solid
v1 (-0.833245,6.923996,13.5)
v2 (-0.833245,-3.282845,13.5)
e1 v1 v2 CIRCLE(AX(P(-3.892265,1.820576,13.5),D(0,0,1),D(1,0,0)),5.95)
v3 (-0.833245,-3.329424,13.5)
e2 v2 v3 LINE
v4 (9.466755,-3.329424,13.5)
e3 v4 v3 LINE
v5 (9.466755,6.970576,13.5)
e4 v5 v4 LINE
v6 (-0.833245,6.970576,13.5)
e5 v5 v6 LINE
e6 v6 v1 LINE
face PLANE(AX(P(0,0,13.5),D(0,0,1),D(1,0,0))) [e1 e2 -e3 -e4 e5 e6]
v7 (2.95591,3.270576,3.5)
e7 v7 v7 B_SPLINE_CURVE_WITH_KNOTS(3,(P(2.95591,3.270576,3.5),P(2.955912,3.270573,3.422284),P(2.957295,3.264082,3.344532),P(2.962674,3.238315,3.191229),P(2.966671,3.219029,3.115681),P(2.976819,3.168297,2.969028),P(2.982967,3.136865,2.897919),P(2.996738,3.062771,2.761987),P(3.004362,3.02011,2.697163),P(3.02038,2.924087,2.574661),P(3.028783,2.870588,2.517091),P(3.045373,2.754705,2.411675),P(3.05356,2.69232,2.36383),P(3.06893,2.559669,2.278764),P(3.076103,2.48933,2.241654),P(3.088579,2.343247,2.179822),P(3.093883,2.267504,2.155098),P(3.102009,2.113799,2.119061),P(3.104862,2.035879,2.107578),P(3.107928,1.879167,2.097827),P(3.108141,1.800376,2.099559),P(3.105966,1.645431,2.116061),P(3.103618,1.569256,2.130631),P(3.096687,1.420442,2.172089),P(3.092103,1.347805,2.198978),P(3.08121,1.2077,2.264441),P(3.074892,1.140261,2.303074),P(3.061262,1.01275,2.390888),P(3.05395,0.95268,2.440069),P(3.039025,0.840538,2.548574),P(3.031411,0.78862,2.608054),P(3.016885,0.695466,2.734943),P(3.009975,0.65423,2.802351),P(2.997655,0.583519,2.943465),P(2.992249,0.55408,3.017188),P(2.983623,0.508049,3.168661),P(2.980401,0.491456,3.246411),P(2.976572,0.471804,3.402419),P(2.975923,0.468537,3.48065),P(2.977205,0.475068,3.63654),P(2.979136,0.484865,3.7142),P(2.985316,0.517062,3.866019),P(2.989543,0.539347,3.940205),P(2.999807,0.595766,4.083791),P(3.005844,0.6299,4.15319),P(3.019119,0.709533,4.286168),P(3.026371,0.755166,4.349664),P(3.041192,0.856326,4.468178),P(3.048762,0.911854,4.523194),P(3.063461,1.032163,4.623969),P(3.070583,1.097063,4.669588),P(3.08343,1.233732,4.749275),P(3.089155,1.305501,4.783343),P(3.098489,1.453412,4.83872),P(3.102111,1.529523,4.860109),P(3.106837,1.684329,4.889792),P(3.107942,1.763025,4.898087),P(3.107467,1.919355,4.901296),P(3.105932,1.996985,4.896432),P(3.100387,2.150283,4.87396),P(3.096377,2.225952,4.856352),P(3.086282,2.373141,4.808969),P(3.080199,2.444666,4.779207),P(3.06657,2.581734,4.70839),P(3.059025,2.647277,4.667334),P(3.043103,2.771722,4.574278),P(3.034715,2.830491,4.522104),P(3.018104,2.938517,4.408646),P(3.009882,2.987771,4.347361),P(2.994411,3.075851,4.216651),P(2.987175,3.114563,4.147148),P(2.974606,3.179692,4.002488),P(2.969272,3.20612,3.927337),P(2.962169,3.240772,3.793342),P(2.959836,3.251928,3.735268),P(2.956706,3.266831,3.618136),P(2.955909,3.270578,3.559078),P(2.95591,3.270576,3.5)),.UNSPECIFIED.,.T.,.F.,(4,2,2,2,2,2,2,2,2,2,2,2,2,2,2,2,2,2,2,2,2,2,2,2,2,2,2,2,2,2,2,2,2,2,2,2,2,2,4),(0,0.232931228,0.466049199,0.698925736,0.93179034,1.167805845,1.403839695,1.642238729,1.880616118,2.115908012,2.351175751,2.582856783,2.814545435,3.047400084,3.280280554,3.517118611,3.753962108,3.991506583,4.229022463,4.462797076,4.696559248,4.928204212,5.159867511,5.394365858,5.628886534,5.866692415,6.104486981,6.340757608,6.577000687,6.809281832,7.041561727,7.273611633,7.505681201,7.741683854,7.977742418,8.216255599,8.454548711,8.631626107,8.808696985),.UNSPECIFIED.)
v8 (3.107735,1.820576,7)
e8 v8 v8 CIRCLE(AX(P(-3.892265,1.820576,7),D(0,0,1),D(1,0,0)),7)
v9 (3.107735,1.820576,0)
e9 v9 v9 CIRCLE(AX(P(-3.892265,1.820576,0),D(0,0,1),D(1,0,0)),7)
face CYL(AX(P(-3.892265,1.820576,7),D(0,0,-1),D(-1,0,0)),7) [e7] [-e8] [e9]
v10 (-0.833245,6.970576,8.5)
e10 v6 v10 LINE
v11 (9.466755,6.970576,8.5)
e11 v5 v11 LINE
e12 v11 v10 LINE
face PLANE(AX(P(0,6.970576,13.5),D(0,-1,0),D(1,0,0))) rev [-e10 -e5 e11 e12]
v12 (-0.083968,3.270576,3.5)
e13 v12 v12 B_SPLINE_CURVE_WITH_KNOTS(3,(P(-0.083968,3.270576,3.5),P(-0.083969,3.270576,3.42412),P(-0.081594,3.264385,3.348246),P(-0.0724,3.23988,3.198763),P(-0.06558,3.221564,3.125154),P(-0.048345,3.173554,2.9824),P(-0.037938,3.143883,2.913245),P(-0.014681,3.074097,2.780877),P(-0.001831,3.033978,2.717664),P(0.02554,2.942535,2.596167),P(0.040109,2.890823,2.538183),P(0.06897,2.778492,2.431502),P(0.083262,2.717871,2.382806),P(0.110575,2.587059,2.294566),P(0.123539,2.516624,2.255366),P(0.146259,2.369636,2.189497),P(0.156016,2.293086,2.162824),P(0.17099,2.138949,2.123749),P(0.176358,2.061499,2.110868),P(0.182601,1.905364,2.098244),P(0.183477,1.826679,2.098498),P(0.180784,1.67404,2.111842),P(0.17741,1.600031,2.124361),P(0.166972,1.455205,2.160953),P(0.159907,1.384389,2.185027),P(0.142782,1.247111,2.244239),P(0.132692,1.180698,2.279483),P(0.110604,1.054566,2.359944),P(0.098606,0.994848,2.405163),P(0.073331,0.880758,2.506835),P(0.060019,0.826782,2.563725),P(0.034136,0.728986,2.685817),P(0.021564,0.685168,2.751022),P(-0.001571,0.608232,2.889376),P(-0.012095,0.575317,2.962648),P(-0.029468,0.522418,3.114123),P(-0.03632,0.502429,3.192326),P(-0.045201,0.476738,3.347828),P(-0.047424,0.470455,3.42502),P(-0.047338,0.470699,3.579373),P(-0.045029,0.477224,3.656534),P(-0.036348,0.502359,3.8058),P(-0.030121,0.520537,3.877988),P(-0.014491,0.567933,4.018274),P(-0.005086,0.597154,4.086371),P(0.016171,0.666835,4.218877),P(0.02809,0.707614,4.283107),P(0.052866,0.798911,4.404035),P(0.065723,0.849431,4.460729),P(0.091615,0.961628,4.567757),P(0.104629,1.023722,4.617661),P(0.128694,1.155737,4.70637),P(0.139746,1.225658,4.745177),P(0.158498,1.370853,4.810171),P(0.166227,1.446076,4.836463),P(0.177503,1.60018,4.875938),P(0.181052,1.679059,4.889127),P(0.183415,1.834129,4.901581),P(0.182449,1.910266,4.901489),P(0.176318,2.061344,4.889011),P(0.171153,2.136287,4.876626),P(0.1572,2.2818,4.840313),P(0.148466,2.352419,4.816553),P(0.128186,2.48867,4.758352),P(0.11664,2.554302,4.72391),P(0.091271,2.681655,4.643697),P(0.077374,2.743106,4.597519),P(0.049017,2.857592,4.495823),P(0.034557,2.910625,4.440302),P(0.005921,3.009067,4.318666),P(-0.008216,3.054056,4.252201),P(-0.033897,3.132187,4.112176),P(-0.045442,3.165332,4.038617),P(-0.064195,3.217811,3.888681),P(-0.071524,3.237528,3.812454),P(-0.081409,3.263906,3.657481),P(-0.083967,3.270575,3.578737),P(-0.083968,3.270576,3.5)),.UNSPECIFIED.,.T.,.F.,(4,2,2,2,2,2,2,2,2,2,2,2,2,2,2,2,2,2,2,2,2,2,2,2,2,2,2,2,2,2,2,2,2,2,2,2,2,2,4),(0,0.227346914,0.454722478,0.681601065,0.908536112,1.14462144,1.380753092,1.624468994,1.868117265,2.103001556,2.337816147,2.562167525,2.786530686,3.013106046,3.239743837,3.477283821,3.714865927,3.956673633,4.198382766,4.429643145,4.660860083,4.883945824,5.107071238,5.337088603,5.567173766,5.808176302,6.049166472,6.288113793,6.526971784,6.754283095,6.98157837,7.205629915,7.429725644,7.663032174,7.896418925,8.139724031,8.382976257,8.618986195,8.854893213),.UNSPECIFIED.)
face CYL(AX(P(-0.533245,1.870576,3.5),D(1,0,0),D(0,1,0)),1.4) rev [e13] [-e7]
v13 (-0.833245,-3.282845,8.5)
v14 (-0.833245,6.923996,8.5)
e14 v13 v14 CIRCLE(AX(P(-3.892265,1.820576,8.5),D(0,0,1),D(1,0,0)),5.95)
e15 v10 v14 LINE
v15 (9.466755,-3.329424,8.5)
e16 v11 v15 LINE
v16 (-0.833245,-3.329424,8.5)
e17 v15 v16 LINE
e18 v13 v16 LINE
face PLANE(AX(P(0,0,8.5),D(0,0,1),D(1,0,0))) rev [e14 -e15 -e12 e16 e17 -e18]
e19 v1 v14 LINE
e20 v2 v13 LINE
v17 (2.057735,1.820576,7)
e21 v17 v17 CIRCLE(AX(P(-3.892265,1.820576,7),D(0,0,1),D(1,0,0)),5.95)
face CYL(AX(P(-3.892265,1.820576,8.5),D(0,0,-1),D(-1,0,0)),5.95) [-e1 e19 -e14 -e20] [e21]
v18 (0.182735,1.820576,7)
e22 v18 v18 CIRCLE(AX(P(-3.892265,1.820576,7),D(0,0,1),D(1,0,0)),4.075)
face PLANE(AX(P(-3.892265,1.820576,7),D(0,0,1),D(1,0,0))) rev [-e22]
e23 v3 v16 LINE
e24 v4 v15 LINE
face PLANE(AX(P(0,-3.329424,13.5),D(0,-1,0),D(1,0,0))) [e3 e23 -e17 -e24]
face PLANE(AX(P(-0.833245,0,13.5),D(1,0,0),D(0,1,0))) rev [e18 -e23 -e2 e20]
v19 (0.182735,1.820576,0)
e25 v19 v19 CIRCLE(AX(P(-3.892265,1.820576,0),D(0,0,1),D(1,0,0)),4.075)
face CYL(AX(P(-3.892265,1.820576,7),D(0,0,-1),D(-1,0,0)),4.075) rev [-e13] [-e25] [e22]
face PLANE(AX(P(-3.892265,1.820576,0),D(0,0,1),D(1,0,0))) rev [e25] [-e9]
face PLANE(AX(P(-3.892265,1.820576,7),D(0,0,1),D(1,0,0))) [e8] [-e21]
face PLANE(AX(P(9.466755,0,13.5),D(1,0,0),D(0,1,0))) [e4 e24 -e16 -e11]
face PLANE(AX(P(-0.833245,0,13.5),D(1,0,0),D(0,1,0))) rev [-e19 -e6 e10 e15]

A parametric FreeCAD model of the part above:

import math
import FreeCAD as App
import Part
import Sketcher
Q = App.Units.Quantity

doc = App.newDocument("Part")
params = doc.addObject("Spreadsheet::Sheet", "Params")
for row, (alias, value) in enumerate([
    ("sketch1_diameter", "14 mm"),
    ("sketch1_diameter2", "8.15 mm"),
    ("pad1_length", "7 mm"),
    ("sketch2_diameter", "11.9 mm"),
    ("pad2_length", "1.5 mm"),
    ("sketch3_radius", "5.95 mm"),
    ("sketch3_width", "10.3 mm"),
    ("pad3_length", "5 mm"),
    ("sketch4_diameter", "2.8 mm"),
    ("pocket1_length", "10 mm"),
], start=1):
    params.set(f"A{row}", alias)
    params.set(f"B{row}", "=" + value)
    params.setAlias(f"B{row}", alias)

body = doc.addObject("PartDesign::Body", "Body")

# Sketch on XY plane
sketch1 = doc.addObject("Sketcher::SketchObject", "Sketch")
body.addObject(sketch1)
sketch1.AttachmentSupport = (doc.XY_Plane, [""])
sketch1.MapMode = "FlatFace"
sketch1.addGeometry([
    Part.Circle(App.Vector(-3.892265, 1.820576, 0), App.Vector(0, 0, 1), 7),
    Part.Circle(App.Vector(-3.892265, 1.820576, 0), App.Vector(0, 0, 1), 4.075),
], False)
sketch1.addConstraint([
    Sketcher.Constraint("Coincident", 1, 3, 0, 3),
    Sketcher.Constraint("Diameter", 0, Q("14 mm")),
    Sketcher.Constraint("Diameter", 1, Q("8.15 mm")),
    Sketcher.Constraint("DistanceX", 0, 3, -1, 1, Q("3.892265 mm")),
    Sketcher.Constraint("DistanceY", -1, 1, 0, 3, Q("1.820576 mm")),
])
sketch1.setExpression("Constraints[1]", "Params.sketch1_diameter")
sketch1.setExpression("Constraints[2]", "Params.sketch1_diameter2")
pad1 = doc.addObject("PartDesign::Pad", "Pad")
body.addObject(pad1)
pad1.Profile = sketch1
pad1.setExpression("Length", "Params.pad1_length")

# Sketch on XY plane
sketch2 = doc.addObject("Sketcher::SketchObject", "Sketch001")
body.addObject(sketch2)
sketch2.AttachmentSupport = (doc.XY_Plane, [""])
sketch2.MapMode = "FlatFace"
sketch2.AttachmentOffset = App.Placement(App.Vector(0, 0, 7), App.Rotation())
sketch2.addGeometry(Part.Circle(App.Vector(-3.892265, 1.820576, 0), App.Vector(0, 0, 1), 5.95), False)
sketch2.addConstraint([
    Sketcher.Constraint("Diameter", 0, Q("11.9 mm")),
    Sketcher.Constraint("DistanceX", 0, 3, -1, 1, Q("3.892265 mm")),
    Sketcher.Constraint("DistanceY", -1, 1, 0, 3, Q("1.820576 mm")),
])
sketch2.setExpression("Constraints[0]", "Params.sketch2_diameter")
pad2 = doc.addObject("PartDesign::Pad", "Pad001")
body.addObject(pad2)
pad2.Profile = sketch2
pad2.setExpression("Length", "Params.pad2_length")

# Sketch on XY plane
sketch3 = doc.addObject("Sketcher::SketchObject", "Sketch002")
body.addObject(sketch3)
sketch3.AttachmentSupport = (doc.XY_Plane, [""])
sketch3.MapMode = "FlatFace"
sketch3.AttachmentOffset = App.Placement(App.Vector(0, 0, 8.5), App.Rotation())
sketch3.addGeometry([
    Part.LineSegment(App.Vector(-0.833245, -3.282845, 0), App.Vector(-0.833245, -3.329424, 0)),  # 0
    Part.LineSegment(App.Vector(-0.833245, -3.329424, 0), App.Vector(9.466755, -3.329424, 0)),  # 1
    Part.LineSegment(App.Vector(9.466755, -3.329424, 0), App.Vector(9.466755, 6.970576, 0)),  # 2
    Part.LineSegment(App.Vector(9.466755, 6.970576, 0), App.Vector(-0.833245, 6.970576, 0)),  # 3
    Part.LineSegment(App.Vector(-0.833245, 6.970576, 0), App.Vector(-0.833245, 6.923996, 0)),  # 4
    Part.ArcOfCircle(Part.Circle(App.Vector(-3.892265, 1.820576, 0), App.Vector(0, 0, 1), 5.95), math.radians(59.061286), math.radians(300.938714)),  # 5
], False)
sketch3.addConstraint([
    Sketcher.Constraint("Coincident", 0, 2, 1, 1),
    Sketcher.Constraint("Coincident", 1, 2, 2, 1),
    Sketcher.Constraint("Coincident", 2, 2, 3, 1),
    Sketcher.Constraint("Coincident", 3, 2, 4, 1),
    Sketcher.Constraint("Coincident", 4, 2, 5, 1),
    Sketcher.Constraint("Coincident", 5, 2, 0, 1),
    Sketcher.Constraint("Vertical", 0),
    Sketcher.Constraint("Horizontal", 1),
    Sketcher.Constraint("Vertical", 2),
    Sketcher.Constraint("Horizontal", 3),
    Sketcher.Constraint("Vertical", 4),
    Sketcher.Constraint("Vertical", 0, 2, 3, 2),
    Sketcher.Constraint("Equal", 3, 2),
    Sketcher.Constraint("Equal", 0, 4),
    Sketcher.Constraint("Radius", 5, Q("5.95 mm")),
    Sketcher.Constraint("DistanceX", 1, 1, 1, 2, Q("10.3 mm")),
    Sketcher.Constraint("DistanceY", 0, 2, 0, 1, Q("0.04658 mm")),
    Sketcher.Constraint("DistanceX", 5, 3, -1, 1, Q("3.892265 mm")),
    Sketcher.Constraint("DistanceY", -1, 1, 5, 3, Q("1.820576 mm")),
])
sketch3.setExpression("Constraints[14]", "Params.sketch3_radius")
sketch3.setExpression("Constraints[15]", "Params.sketch3_width")
pad3 = doc.addObject("PartDesign::Pad", "Pad002")
body.addObject(pad3)
pad3.Profile = sketch3
pad3.setExpression("Length", "Params.pad3_length")

# Sketch on YZ plane
sketch4 = doc.addObject("Sketcher::SketchObject", "Sketch003")
body.addObject(sketch4)
sketch4.AttachmentSupport = (doc.YZ_Plane, [""])
sketch4.MapMode = "FlatFace"
sketch4.AttachmentOffset = App.Placement(App.Vector(0, 0, 9.466755), App.Rotation())
sketch4.addGeometry(Part.Circle(App.Vector(1.870576, 3.5, 0), App.Vector(0, 0, 1), 1.4), False)
sketch4.addConstraint([
    Sketcher.Constraint("Diameter", 0, Q("2.8 mm")),
    Sketcher.Constraint("DistanceY", -1, 1, 0, 3, Q("3.5 mm")),
    Sketcher.Constraint("DistanceX", -1, 1, 0, 3, Q("1.870576 mm")),
])
sketch4.setExpression("Constraints[0]", "Params.sketch4_diameter")
pocket1 = doc.addObject("PartDesign::Pocket", "Pocket")
body.addObject(pocket1)
pocket1.Profile = sketch4
pocket1.setExpression("Length", "Params.pocket1_length")

doc.recompute()
